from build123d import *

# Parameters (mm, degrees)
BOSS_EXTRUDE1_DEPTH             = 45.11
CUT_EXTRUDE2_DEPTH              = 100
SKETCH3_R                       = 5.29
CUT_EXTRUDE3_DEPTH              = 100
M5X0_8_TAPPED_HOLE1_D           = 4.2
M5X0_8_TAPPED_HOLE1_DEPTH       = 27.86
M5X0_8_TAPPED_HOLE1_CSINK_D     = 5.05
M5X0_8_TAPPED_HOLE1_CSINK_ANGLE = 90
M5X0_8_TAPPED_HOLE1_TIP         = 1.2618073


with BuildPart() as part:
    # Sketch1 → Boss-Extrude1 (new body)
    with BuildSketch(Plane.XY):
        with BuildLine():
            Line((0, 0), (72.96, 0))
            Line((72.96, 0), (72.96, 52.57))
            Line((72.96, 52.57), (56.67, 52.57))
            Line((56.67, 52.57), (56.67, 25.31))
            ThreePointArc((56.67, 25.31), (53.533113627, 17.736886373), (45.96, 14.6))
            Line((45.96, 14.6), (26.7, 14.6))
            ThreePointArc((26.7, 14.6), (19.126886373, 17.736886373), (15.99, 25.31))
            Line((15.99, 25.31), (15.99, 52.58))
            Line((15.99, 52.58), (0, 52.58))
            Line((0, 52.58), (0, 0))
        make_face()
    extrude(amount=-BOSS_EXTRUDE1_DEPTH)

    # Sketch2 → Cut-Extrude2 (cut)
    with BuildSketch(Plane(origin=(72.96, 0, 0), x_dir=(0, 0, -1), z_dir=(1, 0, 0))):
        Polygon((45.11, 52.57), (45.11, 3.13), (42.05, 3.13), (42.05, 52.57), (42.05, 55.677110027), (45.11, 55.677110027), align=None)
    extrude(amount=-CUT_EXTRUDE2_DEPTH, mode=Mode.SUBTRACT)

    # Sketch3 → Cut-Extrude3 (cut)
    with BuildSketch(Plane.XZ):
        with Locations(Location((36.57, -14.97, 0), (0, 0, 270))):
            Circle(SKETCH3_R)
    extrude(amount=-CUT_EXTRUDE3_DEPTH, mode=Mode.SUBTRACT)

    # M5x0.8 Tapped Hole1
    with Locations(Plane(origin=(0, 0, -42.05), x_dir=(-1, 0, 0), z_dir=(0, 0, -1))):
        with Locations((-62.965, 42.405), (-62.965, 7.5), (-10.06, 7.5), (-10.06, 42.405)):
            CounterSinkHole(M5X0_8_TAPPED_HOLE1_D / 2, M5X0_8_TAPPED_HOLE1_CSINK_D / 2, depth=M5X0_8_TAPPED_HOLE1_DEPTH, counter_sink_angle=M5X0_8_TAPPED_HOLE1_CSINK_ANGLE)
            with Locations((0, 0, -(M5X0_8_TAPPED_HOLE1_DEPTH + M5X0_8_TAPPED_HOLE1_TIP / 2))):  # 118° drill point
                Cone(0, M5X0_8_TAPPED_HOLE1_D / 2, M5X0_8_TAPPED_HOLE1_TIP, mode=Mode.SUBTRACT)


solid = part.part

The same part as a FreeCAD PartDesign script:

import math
import FreeCAD as App
import Part
import Sketcher
from FreeCAD import Vector
Q = App.Units.Quantity

doc = App.newDocument("Part")
body = doc.addObject("PartDesign::Body", "Body")

# Sketch on XY plane
sketch1 = body.newObject("Sketcher::SketchObject", "Sketch")
sketch1.AttachmentSupport = (doc.getObject("XY_Plane"), [""])
sketch1.MapMode = "FlatFace"
sketch1.addGeometry(Part.LineSegment(Vector(0, 0, 0), Vector(73, 0, 0)), False)
sketch1.addGeometry(Part.LineSegment(Vector(73, 0, 0), Vector(73, 53, 0)), False)
sketch1.addGeometry(Part.LineSegment(Vector(73, 53, 0), Vector(57, 53, 0)), False)
sketch1.addGeometry(Part.LineSegment(Vector(57, 53, 0), Vector(57, 25, 0)), False)
sketch1.addGeometry(Part.ArcOfCircle(Part.Circle(Vector(46, 25, 0), Vector(0, 0, 1), 11), math.radians(-90), math.radians(0)), False)
sketch1.addGeometry(Part.LineSegment(Vector(46, 15, 0), Vector(27, 15, 0)), False)
sketch1.addGeometry(Part.ArcOfCircle(Part.Circle(Vector(27, 25, 0), Vector(0, 0, 1), 11), math.radians(180), math.radians(270)), False)
sketch1.addGeometry(Part.LineSegment(Vector(16, 25, 0), Vector(16, 53, 0)), False)
sketch1.addGeometry(Part.LineSegment(Vector(16, 53, 0), Vector(0, 53, 0)), False)
sketch1.addGeometry(Part.LineSegment(Vector(0, 53, 0), Vector(0, 0, 0)), False)
sketch1.addConstraint(Sketcher.Constraint("Coincident", 0, 2, 1, 1))
sketch1.addConstraint(Sketcher.Constraint("Coincident", 1, 2, 2, 1))
sketch1.addConstraint(Sketcher.Constraint("Coincident", 2, 2, 3, 1))
sketch1.addConstraint(Sketcher.Constraint("Tangent", 3, 2, 4, 2))
sketch1.addConstraint(Sketcher.Constraint("Tangent", 4, 1, 5, 1))
sketch1.addConstraint(Sketcher.Constraint("Tangent", 5, 2, 6, 2))
sketch1.addConstraint(Sketcher.Constraint("Tangent", 6, 1, 7, 1))
sketch1.addConstraint(Sketcher.Constraint("Coincident", 7, 2, 8, 1))
sketch1.addConstraint(Sketcher.Constraint("Coincident", 8, 2, 9, 1))
sketch1.addConstraint(Sketcher.Constraint("Coincident", 9, 2, 0, 1))
sketch1.addConstraint(Sketcher.Constraint("Horizontal", 0))
sketch1.addConstraint(Sketcher.Constraint("Vertical", 1))
sketch1.addConstraint(Sketcher.Constraint("Horizontal", 2))
sketch1.addConstraint(Sketcher.Constraint("Vertical", 3))
sketch1.addConstraint(Sketcher.Constraint("Horizontal", 5))
sketch1.addConstraint(Sketcher.Constraint("Vertical", 7))
sketch1.addConstraint(Sketcher.Constraint("Horizontal", 8))
sketch1.addConstraint(Sketcher.Constraint("Vertical", 9))
sketch1.addConstraint(Sketcher.Constraint("Coincident", 9, 2, -1, 1))
sketch1.addConstraint(Sketcher.Constraint("Equal", 4, 6))
sketch1.addConstraint(Sketcher.Constraint("Radius", 4, Q("10.71 mm")))
sketch1.addConstraint(Sketcher.Constraint("DistanceX", 4, 3, 0, 2, Q("27 mm")))
sketch1.addConstraint(Sketcher.Constraint("DistanceX", 0, 1, 0, 2, Q("72.96 mm")))
sketch1.addConstraint(Sketcher.Constraint("DistanceX", 5, 2, 5, 1, Q("19.26 mm")))
sketch1.addConstraint(Sketcher.Constraint("DistanceY", 1, 1, 1, 2, Q("52.57 mm")))
sketch1.addConstraint(Sketcher.Constraint("DistanceY", 3, 2, 3, 1, Q("27.26 mm")))
sketch1.addConstraint(Sketcher.Constraint("DistanceY", 7, 1, 7, 2, Q("27.27 mm")))
pad1 = body.newObject("PartDesign::Pad", "Pad")
pad1.Profile = sketch1
pad1.Length = 45.11
pad1.Reversed = True

# Sketch on YZ plane
sketch2 = body.newObject("Sketcher::SketchObject", "Sketch001")
sketch2.AttachmentSupport = (doc.getObject("YZ_Plane"), [""])
sketch2.MapMode = "FlatFace"
sketch2.AttachmentOffset = App.Placement(Vector(0, 0, 72.96), App.Rotation())
sketch2.addGeometry(Part.LineSegment(Vector(3.1, -45.1, 0), Vector(55.7, -45.1, 0)), False)
sketch2.addGeometry(Part.LineSegment(Vector(55.7, -45.1, 0), Vector(55.7, -42, 0)), False)
sketch2.addGeometry(Part.LineSegment(Vector(55.7, -42, 0), Vector(3.1, -42, 0)), False)
sketch2.addGeometry(Part.LineSegment(Vector(3.1, -42, 0), Vector(3.1, -45.1, 0)), False)
sketch2.addConstraint(Sketcher.Constraint("Coincident", 0, 2, 1, 1))
sketch2.addConstraint(Sketcher.Constraint("Coincident", 1, 2, 2, 1))
sketch2.addConstraint(Sketcher.Constraint("Coincident", 2, 2, 3, 1))
sketch2.addConstraint(Sketcher.Constraint("Coincident", 3, 2, 0, 1))
sketch2.addConstraint(Sketcher.Constraint("Horizontal", 0))
sketch2.addConstraint(Sketcher.Constraint("Vertical", 1))
sketch2.addConstraint(Sketcher.Constraint("Horizontal", 2))
sketch2.addConstraint(Sketcher.Constraint("Vertical", 3))
sketch2.addConstraint(Sketcher.Constraint("DistanceY", 1, 1, 1, 2, Q("3.06 mm")))
sketch2.addConstraint(Sketcher.Constraint("DistanceY", 0, 2, -1, 1, Q("45.11 mm")))
sketch2.addConstraint(Sketcher.Constraint("DistanceX", -1, 1, 2, 2, Q("3.13 mm")))
sketch2.addConstraint(Sketcher.Constraint("DistanceX", 0, 1, 0, 2, Q("52.54711 mm")))
pocket1 = body.newObject("PartDesign::Pocket", "Pocket")
pocket1.Profile = sketch2
pocket1.Length = 100

# Sketch on XZ plane
sketch3 = body.newObject("Sketcher::SketchObject", "Sketch002")
sketch3.AttachmentSupport = (doc.getObject("XZ_Plane"), [""])
sketch3.MapMode = "FlatFace"
sketch3.addGeometry(Part.Circle(Vector(37, -15, 0), Vector(0, 0, 1), 5), False)
sketch3.addConstraint(Sketcher.Constraint("Diameter", 0, Q("10.58 mm")))
sketch3.addConstraint(Sketcher.Constraint("DistanceX", -1, 1, 0, 3, Q("36.57 mm")))
sketch3.addConstraint(Sketcher.Constraint("DistanceY", 0, 3, -1, 1, Q("14.97 mm")))
pocket2 = body.newObject("PartDesign::Pocket", "Pocket001")
pocket2.Profile = sketch3
pocket2.Length = 100

# Sketch on XY plane
sketch4 = body.newObject("Sketcher::SketchObject", "Sketch003")
sketch4.AttachmentSupport = (doc.getObject("XY_Plane"), [""])
sketch4.MapMode = "FlatFace"
sketch4.AttachmentOffset = App.Placement(Vector(0, 0, -42.05), App.Rotation())
sketch4.addGeometry(Part.Circle(Vector(63, 42.4, 0), Vector(0, 0, 1), 2.1), False)
sketch4.addGeometry(Part.Circle(Vector(63, 7.5, 0), Vector(0, 0, 1), 2.1), False)
sketch4.addGeometry(Part.Circle(Vector(10.1, 7.5, 0), Vector(0, 0, 1), 2.1), False)
sketch4.addGeometry(Part.Circle(Vector(10.1, 42.4, 0), Vector(0, 0, 1), 2.1), False)
sketch4.addConstraint(Sketcher.Constraint("Equal", 0, 1))
sketch4.addConstraint(Sketcher.Constraint("Equal", 1, 2))
sketch4.addConstraint(Sketcher.Constraint("Equal", 2, 3))
sketch4.addConstraint(Sketcher.Constraint("Horizontal", 1, 3, 2, 3))
sketch4.addConstraint(Sketcher.Constraint("Horizontal", 0, 3, 3, 3))
sketch4.addConstraint(Sketcher.Constraint("Vertical", 0, 3, 1, 3))
sketch4.addConstraint(Sketcher.Constraint("Vertical", 2, 3, 3, 3))
sketch4.addConstraint(Sketcher.Constraint("Diameter", 0, Q("4.2 mm")))
sketch4.addConstraint(Sketcher.Constraint("DistanceY", -1, 1, 1, 3, Q("7.5 mm")))
sketch4.addConstraint(Sketcher.Constraint("DistanceX", -1, 1, 2, 3, Q("10.06 mm")))
sketch4.addConstraint(Sketcher.Constraint("DistanceX", -1, 1, 0, 3, Q("62.965 mm")))
sketch4.addConstraint(Sketcher.Constraint("DistanceY", -1, 1, 0, 3, Q("42.405 mm")))
doc.recompute()
hole = body.newObject("PartDesign::Hole", "Hole")
hole.Profile = sketch4
hole.ThreadType = "None"
hole.Diameter = 4.2
hole.DepthType = "Dimension"
hole.Depth = 27.86
hole.DrillPoint = "Angled"
hole.DrillPointAngle = 118
hole.HoleCutType = "Countersink"
hole.HoleCutDiameter = 5.05
hole.HoleCutCountersinkAngle = 90
hole.Reversed = True

doc.recompute()
